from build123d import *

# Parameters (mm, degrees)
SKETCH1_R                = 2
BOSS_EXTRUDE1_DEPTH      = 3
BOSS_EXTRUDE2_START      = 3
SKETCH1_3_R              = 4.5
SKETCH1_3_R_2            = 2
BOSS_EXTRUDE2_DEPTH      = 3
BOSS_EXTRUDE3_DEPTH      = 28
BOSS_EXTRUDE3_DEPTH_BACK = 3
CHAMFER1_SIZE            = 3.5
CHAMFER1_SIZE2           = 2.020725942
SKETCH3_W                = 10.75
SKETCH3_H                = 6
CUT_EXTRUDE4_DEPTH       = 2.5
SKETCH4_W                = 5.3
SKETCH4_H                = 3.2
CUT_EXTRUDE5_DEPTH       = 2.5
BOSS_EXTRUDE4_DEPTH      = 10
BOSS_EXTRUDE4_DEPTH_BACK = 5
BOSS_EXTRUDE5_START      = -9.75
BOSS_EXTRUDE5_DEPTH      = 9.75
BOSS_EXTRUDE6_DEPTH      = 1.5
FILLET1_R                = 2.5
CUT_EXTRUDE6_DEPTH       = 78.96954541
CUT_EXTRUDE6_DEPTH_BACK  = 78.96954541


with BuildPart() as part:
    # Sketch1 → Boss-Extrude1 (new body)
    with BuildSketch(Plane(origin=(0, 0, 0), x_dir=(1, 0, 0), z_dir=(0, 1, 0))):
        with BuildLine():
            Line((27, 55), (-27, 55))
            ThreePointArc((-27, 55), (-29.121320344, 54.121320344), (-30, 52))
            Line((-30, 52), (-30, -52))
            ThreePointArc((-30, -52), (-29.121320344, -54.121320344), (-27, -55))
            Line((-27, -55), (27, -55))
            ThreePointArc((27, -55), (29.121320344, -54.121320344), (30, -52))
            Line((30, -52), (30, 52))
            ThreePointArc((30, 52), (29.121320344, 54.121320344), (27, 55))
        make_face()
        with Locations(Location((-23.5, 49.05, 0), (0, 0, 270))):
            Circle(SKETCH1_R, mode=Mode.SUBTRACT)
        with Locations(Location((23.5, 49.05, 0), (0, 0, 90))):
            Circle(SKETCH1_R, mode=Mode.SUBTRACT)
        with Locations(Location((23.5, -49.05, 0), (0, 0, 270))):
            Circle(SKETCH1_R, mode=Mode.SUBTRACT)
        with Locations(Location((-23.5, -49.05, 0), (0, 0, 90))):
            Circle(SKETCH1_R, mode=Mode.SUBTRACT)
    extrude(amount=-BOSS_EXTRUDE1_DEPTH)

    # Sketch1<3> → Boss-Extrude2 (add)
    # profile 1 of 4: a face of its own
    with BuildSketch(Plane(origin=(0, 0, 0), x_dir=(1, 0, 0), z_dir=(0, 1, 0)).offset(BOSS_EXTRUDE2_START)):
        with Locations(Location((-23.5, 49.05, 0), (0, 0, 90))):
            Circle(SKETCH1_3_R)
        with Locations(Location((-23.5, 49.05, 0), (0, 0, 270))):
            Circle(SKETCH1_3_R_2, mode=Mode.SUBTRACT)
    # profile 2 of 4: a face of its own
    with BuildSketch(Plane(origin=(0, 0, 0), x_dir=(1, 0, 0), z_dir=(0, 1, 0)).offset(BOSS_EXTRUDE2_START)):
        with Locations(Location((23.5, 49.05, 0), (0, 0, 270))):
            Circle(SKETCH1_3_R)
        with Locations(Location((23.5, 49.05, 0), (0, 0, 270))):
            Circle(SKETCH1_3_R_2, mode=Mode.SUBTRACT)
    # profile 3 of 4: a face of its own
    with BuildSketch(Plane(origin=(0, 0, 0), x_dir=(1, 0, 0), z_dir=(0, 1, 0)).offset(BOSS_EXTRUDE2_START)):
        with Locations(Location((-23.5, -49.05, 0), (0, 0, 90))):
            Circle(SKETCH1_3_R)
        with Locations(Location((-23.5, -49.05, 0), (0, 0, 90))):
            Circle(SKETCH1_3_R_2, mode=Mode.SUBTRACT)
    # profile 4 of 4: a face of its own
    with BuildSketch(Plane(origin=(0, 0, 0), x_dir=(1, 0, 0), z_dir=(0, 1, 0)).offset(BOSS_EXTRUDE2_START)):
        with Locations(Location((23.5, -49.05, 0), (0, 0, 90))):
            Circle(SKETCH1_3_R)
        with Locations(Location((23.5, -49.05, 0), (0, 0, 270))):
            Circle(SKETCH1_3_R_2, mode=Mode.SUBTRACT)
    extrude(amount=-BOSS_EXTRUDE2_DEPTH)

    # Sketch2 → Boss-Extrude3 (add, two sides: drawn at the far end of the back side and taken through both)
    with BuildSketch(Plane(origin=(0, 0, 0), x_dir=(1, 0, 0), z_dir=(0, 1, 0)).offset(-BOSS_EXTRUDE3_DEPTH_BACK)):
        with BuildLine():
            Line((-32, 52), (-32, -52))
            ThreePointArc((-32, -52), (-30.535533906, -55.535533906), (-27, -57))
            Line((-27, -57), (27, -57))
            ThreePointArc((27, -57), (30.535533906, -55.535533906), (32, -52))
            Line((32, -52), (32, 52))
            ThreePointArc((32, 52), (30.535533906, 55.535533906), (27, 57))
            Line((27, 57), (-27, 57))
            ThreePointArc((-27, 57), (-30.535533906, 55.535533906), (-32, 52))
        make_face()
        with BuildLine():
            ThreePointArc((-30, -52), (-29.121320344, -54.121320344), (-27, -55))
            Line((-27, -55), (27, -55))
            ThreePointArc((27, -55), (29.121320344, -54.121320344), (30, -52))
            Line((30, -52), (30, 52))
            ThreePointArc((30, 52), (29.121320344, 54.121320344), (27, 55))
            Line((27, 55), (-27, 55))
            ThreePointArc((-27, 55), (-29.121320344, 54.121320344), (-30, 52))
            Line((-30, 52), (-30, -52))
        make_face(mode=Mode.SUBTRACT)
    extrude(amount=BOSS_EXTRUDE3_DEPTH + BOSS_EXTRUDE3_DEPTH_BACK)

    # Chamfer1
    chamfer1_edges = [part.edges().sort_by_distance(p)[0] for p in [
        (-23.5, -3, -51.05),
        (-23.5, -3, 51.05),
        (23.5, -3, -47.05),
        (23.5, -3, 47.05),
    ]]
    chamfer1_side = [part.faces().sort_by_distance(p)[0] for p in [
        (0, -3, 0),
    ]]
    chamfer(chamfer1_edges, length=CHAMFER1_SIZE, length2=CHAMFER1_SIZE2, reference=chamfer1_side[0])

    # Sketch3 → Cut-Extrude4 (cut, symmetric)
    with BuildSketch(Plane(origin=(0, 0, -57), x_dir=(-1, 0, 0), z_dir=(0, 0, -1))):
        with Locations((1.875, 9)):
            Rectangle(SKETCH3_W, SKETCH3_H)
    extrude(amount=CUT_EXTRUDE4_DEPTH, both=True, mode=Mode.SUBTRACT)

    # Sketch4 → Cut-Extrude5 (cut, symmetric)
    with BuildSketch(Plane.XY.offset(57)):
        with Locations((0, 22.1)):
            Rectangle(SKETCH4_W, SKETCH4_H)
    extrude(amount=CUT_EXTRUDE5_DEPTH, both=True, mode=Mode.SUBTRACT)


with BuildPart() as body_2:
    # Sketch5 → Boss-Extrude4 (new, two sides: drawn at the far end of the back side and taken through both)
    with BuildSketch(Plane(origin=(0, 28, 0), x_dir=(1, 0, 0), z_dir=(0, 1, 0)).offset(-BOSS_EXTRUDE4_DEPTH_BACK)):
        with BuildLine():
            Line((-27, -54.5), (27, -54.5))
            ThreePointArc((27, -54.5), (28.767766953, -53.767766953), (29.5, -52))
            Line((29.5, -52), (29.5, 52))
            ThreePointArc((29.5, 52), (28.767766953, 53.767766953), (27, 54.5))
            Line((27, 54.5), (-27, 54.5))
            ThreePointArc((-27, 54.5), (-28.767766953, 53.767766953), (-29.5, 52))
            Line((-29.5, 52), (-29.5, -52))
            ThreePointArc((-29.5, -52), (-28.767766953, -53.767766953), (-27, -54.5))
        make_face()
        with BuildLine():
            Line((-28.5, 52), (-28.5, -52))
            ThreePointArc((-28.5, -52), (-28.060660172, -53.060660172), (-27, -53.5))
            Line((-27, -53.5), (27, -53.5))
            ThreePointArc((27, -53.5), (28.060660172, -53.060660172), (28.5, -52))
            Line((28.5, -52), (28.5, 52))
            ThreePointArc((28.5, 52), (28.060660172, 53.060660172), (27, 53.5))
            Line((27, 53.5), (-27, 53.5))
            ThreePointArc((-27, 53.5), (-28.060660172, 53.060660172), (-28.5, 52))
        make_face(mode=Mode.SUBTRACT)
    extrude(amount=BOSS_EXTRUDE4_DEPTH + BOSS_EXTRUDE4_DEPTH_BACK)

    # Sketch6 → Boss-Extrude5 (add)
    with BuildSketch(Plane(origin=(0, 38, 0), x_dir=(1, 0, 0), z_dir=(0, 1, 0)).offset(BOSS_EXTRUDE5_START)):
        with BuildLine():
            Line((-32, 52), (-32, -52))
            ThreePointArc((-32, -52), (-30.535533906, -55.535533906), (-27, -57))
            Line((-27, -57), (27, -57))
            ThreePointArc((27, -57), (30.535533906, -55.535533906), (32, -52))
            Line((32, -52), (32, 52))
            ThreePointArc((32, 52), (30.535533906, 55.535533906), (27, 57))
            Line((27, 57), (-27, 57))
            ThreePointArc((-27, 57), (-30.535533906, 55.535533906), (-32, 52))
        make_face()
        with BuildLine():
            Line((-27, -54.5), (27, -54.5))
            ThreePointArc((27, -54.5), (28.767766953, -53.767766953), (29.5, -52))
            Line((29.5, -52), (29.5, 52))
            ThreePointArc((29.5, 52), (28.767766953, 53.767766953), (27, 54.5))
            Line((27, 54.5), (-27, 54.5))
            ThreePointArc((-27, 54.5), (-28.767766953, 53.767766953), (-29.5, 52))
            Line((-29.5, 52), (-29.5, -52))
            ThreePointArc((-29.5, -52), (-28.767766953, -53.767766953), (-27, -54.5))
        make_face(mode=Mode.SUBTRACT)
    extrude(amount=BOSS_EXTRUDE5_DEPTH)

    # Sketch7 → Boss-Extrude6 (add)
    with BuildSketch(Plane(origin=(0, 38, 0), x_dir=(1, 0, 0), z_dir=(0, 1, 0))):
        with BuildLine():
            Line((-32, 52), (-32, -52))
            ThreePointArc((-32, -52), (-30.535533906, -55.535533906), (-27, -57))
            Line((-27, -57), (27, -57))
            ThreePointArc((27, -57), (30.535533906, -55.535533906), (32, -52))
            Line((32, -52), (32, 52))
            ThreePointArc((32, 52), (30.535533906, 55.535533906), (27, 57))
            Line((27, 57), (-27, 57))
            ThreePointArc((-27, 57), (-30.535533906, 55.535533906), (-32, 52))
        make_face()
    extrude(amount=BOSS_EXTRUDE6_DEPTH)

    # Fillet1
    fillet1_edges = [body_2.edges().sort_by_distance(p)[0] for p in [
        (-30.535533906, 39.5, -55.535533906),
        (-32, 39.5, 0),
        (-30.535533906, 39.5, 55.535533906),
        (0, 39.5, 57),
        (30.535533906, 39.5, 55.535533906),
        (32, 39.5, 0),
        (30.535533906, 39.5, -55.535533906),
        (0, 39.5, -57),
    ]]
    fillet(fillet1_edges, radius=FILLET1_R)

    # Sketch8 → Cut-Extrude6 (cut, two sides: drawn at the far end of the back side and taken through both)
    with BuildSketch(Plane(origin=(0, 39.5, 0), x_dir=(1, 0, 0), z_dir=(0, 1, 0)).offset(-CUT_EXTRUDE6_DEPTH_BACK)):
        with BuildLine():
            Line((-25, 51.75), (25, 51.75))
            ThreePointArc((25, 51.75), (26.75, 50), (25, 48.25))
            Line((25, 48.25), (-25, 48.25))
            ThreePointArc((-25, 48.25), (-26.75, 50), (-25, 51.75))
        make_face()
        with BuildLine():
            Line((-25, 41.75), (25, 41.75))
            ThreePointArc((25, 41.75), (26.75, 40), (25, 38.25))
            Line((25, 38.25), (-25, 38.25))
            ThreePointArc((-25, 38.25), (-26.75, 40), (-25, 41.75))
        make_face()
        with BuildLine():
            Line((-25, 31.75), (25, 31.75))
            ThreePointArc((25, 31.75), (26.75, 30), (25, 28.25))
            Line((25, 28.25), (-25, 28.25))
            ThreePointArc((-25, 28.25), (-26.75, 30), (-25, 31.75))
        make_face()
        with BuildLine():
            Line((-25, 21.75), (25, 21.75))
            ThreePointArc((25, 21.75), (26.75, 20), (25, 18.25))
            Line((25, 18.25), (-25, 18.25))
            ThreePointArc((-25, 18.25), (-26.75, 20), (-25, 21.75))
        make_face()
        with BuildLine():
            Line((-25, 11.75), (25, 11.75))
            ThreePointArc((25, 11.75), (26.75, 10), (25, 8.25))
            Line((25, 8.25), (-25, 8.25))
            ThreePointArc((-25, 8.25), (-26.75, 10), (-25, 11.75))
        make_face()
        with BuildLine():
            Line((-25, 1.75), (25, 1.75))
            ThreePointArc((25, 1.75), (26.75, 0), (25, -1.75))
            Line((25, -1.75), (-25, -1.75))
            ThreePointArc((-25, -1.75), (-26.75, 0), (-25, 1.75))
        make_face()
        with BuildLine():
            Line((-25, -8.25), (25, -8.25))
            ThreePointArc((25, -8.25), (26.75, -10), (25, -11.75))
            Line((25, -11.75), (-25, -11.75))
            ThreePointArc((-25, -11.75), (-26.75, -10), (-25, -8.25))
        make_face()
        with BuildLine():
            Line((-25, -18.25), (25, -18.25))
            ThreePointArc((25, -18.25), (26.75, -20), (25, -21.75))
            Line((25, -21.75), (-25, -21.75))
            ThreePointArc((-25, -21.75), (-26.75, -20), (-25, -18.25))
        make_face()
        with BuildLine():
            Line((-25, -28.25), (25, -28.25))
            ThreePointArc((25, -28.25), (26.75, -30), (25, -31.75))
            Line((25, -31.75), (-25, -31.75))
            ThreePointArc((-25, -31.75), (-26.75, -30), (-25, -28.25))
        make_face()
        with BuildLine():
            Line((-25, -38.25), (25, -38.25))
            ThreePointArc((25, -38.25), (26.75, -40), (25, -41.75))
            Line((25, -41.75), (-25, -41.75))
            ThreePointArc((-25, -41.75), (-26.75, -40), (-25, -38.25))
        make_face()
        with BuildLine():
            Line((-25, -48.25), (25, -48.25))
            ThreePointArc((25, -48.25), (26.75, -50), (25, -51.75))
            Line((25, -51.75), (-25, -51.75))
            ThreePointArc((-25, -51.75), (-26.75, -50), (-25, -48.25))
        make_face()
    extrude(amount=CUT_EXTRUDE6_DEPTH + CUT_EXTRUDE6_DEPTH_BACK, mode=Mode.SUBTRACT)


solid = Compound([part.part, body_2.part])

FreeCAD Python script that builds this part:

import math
import FreeCAD as App
import Part
import Sketcher

V = App.Vector
Q = App.Units.Quantity


def edges_at(feature, points):
    """Names of the edges that pass closest to the given points."""
    edges = feature.Shape.Edges
    near = lambda p: min(range(len(edges)), key=lambda i: edges[i].distToShape(Part.Vertex(*p))[0])
    return sorted({f"Edge{near(p) + 1}" for p in points})


def add_polygon(sketch, points):
    """Adds a closed chain of lines whose ends are joined by coincident constraints."""
    first, n = sketch.GeometryCount, len(points)
    for a, b in zip(points, points[1:] + points[:1]):
        sketch.addGeometry(Part.LineSegment(App.Vector(*a, 0), App.Vector(*b, 0)), False)
    for i in range(n):
        sketch.addConstraint(Sketcher.Constraint("Coincident", first + i, 2, first + (i + 1) % n, 1))

doc = App.newDocument("Part")
body = doc.addObject("PartDesign::Body", "Body")

sketch1 = doc.addObject("Sketcher::SketchObject", "Sketch")
body.addObject(sketch1)
sketch1.AttachmentSupport = (doc.XZ_Plane, [""])
sketch1.MapMode = "FlatFace"
sketch1.addGeometry([
    Part.LineSegment(V(27, -55, 0), V(-27, -55, 0)),
    Part.ArcOfCircle(Part.Circle(V(-27, -52, 0), V(0, 0, 1), 3), math.radians(180), math.radians(270)),
    Part.LineSegment(V(-30, -52, 0), V(-30, 52, 0)),
    Part.ArcOfCircle(Part.Circle(V(-27, 52, 0), V(0, 0, 1), 3), math.radians(90), math.radians(180)),
    Part.LineSegment(V(-27, 55, 0), V(27, 55, 0)),
    Part.ArcOfCircle(Part.Circle(V(27, 52, 0), V(0, 0, 1), 3), math.radians(0), math.radians(90)),
    Part.LineSegment(V(30, 52, 0), V(30, -52, 0)),
    Part.ArcOfCircle(Part.Circle(V(27, -52, 0), V(0, 0, 1), 3), math.radians(-90), math.radians(0)),
    Part.Circle(V(-23.5, 49.05, 0), V(0, 0, 1), 2),
    Part.Circle(V(23.5, 49.05, 0), V(0, 0, 1), 2),
    Part.Circle(V(-23.5, -49.05, 0), V(0, 0, 1), 2),
    Part.Circle(V(23.5, -49.05, 0), V(0, 0, 1), 2),
], False)
sketch1.addConstraint([
    Sketcher.Constraint("Tangent", 0, 2, 1, 2),
    Sketcher.Constraint("Tangent", 1, 1, 2, 1),
    Sketcher.Constraint("Tangent", 2, 2, 3, 2),
    Sketcher.Constraint("Tangent", 3, 1, 4, 1),
    Sketcher.Constraint("Tangent", 4, 2, 5, 2),
    Sketcher.Constraint("Tangent", 5, 1, 6, 1),
    Sketcher.Constraint("Tangent", 6, 2, 7, 2),
    Sketcher.Constraint("Tangent", 7, 1, 0, 1),
    Sketcher.Constraint("Horizontal", 0),
    Sketcher.Constraint("Vertical", 2),
    Sketcher.Constraint("Horizontal", 4),
    Sketcher.Constraint("Vertical", 6),
    Sketcher.Constraint("Equal", 1, 3),
    Sketcher.Constraint("Equal", 3, 5),
    Sketcher.Constraint("Equal", 5, 7),
    Sketcher.Constraint("Equal", 8, 9),
    Sketcher.Constraint("Equal", 9, 10),
    Sketcher.Constraint("Equal", 10, 11),
    Sketcher.Constraint("Symmetric", 1, 3, 5, 3, -1, 1),
    Sketcher.Constraint("Symmetric", 9, 3, 10, 3, -1, 1),
    Sketcher.Constraint("Symmetric", 8, 3, 11, 3, -1, 1),
    Sketcher.Constraint("Symmetric", 8, 3, 9, 3, -2),
    Sketcher.Constraint("Diameter", 8, Q("4 mm")),
    Sketcher.Constraint("Radius", 1, Q("3 mm")),
    Sketcher.Constraint("DistanceX", 0, 2, 0, 1, Q("54 mm")),
    Sketcher.Constraint("DistanceY", 2, 1, 2, 2, Q("104 mm")),
    Sketcher.Constraint("DistanceX", 8, 3, 9, 3, Q("47 mm")),
    Sketcher.Constraint("DistanceY", 10, 3, 8, 3, Q("98.1 mm")),
])
pad1 = doc.addObject("PartDesign::Pad", "Pad")
body.addObject(pad1)
pad1.Profile = sketch1
pad1.Length = 3

sketch2 = doc.addObject("Sketcher::SketchObject", "Sketch001")
body.addObject(sketch2)
sketch2.AttachmentSupport = (doc.XZ_Plane, [""])
sketch2.MapMode = "FlatFace"
sketch2.AttachmentOffset = App.Placement(V(0, 0, -3), App.Rotation())
sketch2.addGeometry([
    Part.Circle(V(-23.5, -49.05, 0), V(0, 0, 1), 4.5),
    Part.Circle(V(-23.5, -49.05, 0), V(0, 0, 1), 2),
    Part.Circle(V(23.5, -49.05, 0), V(0, 0, 1), 4.5),
    Part.Circle(V(23.5, -49.05, 0), V(0, 0, 1), 2),
    Part.Circle(V(-23.5, 49.05, 0), V(0, 0, 1), 4.5),
    Part.Circle(V(-23.5, 49.05, 0), V(0, 0, 1), 2),
    Part.Circle(V(23.5, 49.05, 0), V(0, 0, 1), 4.5),
    Part.Circle(V(23.5, 49.05, 0), V(0, 0, 1), 2),
], False)
sketch2.addConstraint([
    Sketcher.Constraint("Coincident", 1, 3, 0, 3),
    Sketcher.Constraint("Coincident", 3, 3, 2, 3),
    Sketcher.Constraint("Coincident", 5, 3, 4, 3),
    Sketcher.Constraint("Coincident", 7, 3, 6, 3),
    Sketcher.Constraint("Equal", 0, 2),
    Sketcher.Constraint("Equal", 1, 3),
    Sketcher.Constraint("Equal", 2, 4),
    Sketcher.Constraint("Equal", 3, 5),
    Sketcher.Constraint("Equal", 4, 6),
    Sketcher.Constraint("Equal", 5, 7),
    Sketcher.Constraint("Symmetric", 2, 3, 4, 3, -1, 1),
    Sketcher.Constraint("Symmetric", 0, 3, 6, 3, -1, 1),
    Sketcher.Constraint("Symmetric", 0, 3, 2, 3, -2),
    Sketcher.Constraint("Diameter", 0, Q("9 mm")),
    Sketcher.Constraint("Diameter", 1, Q("4 mm")),
    Sketcher.Constraint("DistanceX", 0, 3, 2, 3, Q("47 mm")),
    Sketcher.Constraint("DistanceY", 0, 3, 4, 3, Q("98.1 mm")),
])
pad2 = doc.addObject("PartDesign::Pad", "Pad001")
body.addObject(pad2)
pad2.Profile = sketch2
pad2.Length = 3

sketch3 = doc.addObject("Sketcher::SketchObject", "Sketch002")
body.addObject(sketch3)
sketch3.AttachmentSupport = (doc.XZ_Plane, [""])
sketch3.MapMode = "FlatFace"
sketch3.addGeometry([
    Part.LineSegment(V(-32, -52, 0), V(-32, 52, 0)),
    Part.ArcOfCircle(Part.Circle(V(-27, 52, 0), V(0, 0, 1), 5), math.radians(90), math.radians(180)),
    Part.LineSegment(V(-27, 57, 0), V(27, 57, 0)),
    Part.ArcOfCircle(Part.Circle(V(27, 52, 0), V(0, 0, 1), 5), math.radians(0), math.radians(90)),
    Part.LineSegment(V(32, 52, 0), V(32, -52, 0)),
    Part.ArcOfCircle(Part.Circle(V(27, -52, 0), V(0, 0, 1), 5), math.radians(-90), math.radians(0)),
    Part.LineSegment(V(27, -57, 0), V(-27, -57, 0)),
    Part.ArcOfCircle(Part.Circle(V(-27, -52, 0), V(0, 0, 1), 5), math.radians(180), math.radians(270)),
    Part.ArcOfCircle(Part.Circle(V(-27, 52, 0), V(0, 0, 1), 3), math.radians(90), math.radians(180)),
    Part.LineSegment(V(-30, 52, 0), V(-30, -52, 0)),
    Part.ArcOfCircle(Part.Circle(V(-27, -52, 0), V(0, 0, 1), 3), math.radians(180), math.radians(270)),
    Part.LineSegment(V(-27, -55, 0), V(27, -55, 0)),
    Part.ArcOfCircle(Part.Circle(V(27, -52, 0), V(0, 0, 1), 3), math.radians(-90), math.radians(0)),
    Part.LineSegment(V(30, -52, 0), V(30, 52, 0)),
    Part.ArcOfCircle(Part.Circle(V(27, 52, 0), V(0, 0, 1), 3), math.radians(0), math.radians(90)),
    Part.LineSegment(V(27, 55, 0), V(-27, 55, 0)),
], False)
sketch3.addConstraint([
    Sketcher.Constraint("Tangent", 0, 2, 1, 2),
    Sketcher.Constraint("Tangent", 1, 1, 2, 1),
    Sketcher.Constraint("Tangent", 2, 2, 3, 2),
    Sketcher.Constraint("Tangent", 3, 1, 4, 1),
    Sketcher.Constraint("Tangent", 4, 2, 5, 2),
    Sketcher.Constraint("Tangent", 5, 1, 6, 1),
    Sketcher.Constraint("Tangent", 6, 2, 7, 2),
    Sketcher.Constraint("Tangent", 7, 1, 0, 1),
    Sketcher.Constraint("Tangent", 8, 2, 9, 1),
    Sketcher.Constraint("Tangent", 9, 2, 10, 1),
    Sketcher.Constraint("Tangent", 10, 2, 11, 1),
    Sketcher.Constraint("Tangent", 11, 2, 12, 1),
    Sketcher.Constraint("Tangent", 12, 2, 13, 1),
    Sketcher.Constraint("Tangent", 13, 2, 14, 1),
    Sketcher.Constraint("Tangent", 14, 2, 15, 1),
    Sketcher.Constraint("Tangent", 15, 2, 8, 1),
    Sketcher.Constraint("Vertical", 0),
    Sketcher.Constraint("Horizontal", 2),
    Sketcher.Constraint("Vertical", 4),
    Sketcher.Constraint("Horizontal", 6),
    Sketcher.Constraint("Vertical", 9),
    Sketcher.Constraint("Horizontal", 11),
    Sketcher.Constraint("Vertical", 13),
    Sketcher.Constraint("Horizontal", 15),
    Sketcher.Constraint("Coincident", 8, 3, 1, 3),
    Sketcher.Constraint("Coincident", 10, 3, 7, 3),
    Sketcher.Constraint("Coincident", 12, 3, 5, 3),
    Sketcher.Constraint("Equal", 1, 3),
    Sketcher.Constraint("Equal", 3, 5),
    Sketcher.Constraint("Equal", 5, 7),
    Sketcher.Constraint("Equal", 12, 14),
    Sketcher.Constraint("Symmetric", 1, 3, 5, 3, -1, 1),
    Sketcher.Constraint("Radius", 1, Q("5 mm")),
    Sketcher.Constraint("Radius", 8, Q("3 mm")),
    Sketcher.Constraint("DistanceX", 2, 1, 2, 2, Q("54 mm")),
    Sketcher.Constraint("DistanceY", 0, 1, 0, 2, Q("104 mm")),
])
pad3 = doc.addObject("PartDesign::Pad", "Pad002")
body.addObject(pad3)
pad3.Profile = sketch3
pad3.Type = "TwoLengths"
pad3.Length = 28
pad3.Length2 = 3
pad3.Reversed = True
doc.recompute()

chamfer = doc.addObject("PartDesign::Chamfer", "Chamfer")
body.addObject(chamfer)
chamfer.Base = (pad3, edges_at(pad3, [
    (-23.5, -3, -51.05),
    (-23.5, -3, 51.05),
    (23.5, -3, -47.05),
    (23.5, -3, 47.05),
]))
chamfer.ChamferType = "Two distances"
chamfer.Size = 3.5
chamfer.Size2 = 2.020726
chamfer.FlipDirection = True

sketch4 = doc.addObject("Sketcher::SketchObject", "Sketch003")
body.addObject(sketch4)
sketch4.AttachmentSupport = (doc.XY_Plane, [""])
sketch4.MapMode = "FlatFace"
sketch4.AttachmentOffset = App.Placement(V(0, 0, -57), App.Rotation())
add_polygon(sketch4, [(3.5, 12), (3.5, 6), (-7.25, 6), (-7.25, 12)])
sketch4.addConstraint([
    Sketcher.Constraint("Vertical", 0),
    Sketcher.Constraint("Horizontal", 1),
    Sketcher.Constraint("Vertical", 2),
    Sketcher.Constraint("Horizontal", 3),
    Sketcher.Constraint("DistanceY", 0, 2, 0, 1, Q("6 mm")),
    Sketcher.Constraint("DistanceY", -1, 1, 0, 2, Q("6 mm")),
    Sketcher.Constraint("DistanceX", 1, 2, 1, 1, Q("10.75 mm")),
    Sketcher.Constraint("DistanceX", -1, 1, 0, 2, Q("3.5 mm")),
])
pocket1 = doc.addObject("PartDesign::Pocket", "Pocket")
body.addObject(pocket1)
pocket1.Profile = sketch4
pocket1.Length = 5
pocket1.Midplane = True

sketch5 = doc.addObject("Sketcher::SketchObject", "Sketch004")
body.addObject(sketch5)
sketch5.AttachmentSupport = (doc.XY_Plane, [""])
sketch5.MapMode = "FlatFace"
sketch5.AttachmentOffset = App.Placement(V(0, 0, 57), App.Rotation())
add_polygon(sketch5, [(-2.65, 23.7), (-2.65, 20.5), (2.65, 20.5), (2.65, 23.7)])
sketch5.addConstraint([
    Sketcher.Constraint("Vertical", 0),
    Sketcher.Constraint("Horizontal", 1),
    Sketcher.Constraint("Vertical", 2),
    Sketcher.Constraint("Horizontal", 3),
    Sketcher.Constraint("DistanceX", 1, 1, 1, 2, Q("5.3 mm")),
    Sketcher.Constraint("DistanceY", 0, 2, 0, 1, Q("3.2 mm")),
    Sketcher.Constraint("DistanceY", -1, 1, 0, 2, Q("20.5 mm")),
    Sketcher.Constraint("DistanceX", 0, 2, -1, 1, Q("2.65 mm")),
])
pocket2 = doc.addObject("PartDesign::Pocket", "Pocket001")
body.addObject(pocket2)
pocket2.Profile = sketch5
pocket2.Length = 5
pocket2.Midplane = True
body2 = doc.addObject("PartDesign::Body", "Body001")

sketch6 = doc.addObject("Sketcher::SketchObject", "Sketch005")
body2.addObject(sketch6)
sketch6.AttachmentSupport = (doc.getObject("XZ_Plane001"), [""])
sketch6.MapMode = "FlatFace"
sketch6.AttachmentOffset = App.Placement(V(0, 0, -28), App.Rotation())
sketch6.addGeometry([
    Part.LineSegment(V(-27, 54.5, 0), V(27, 54.5, 0)),
    Part.ArcOfCircle(Part.Circle(V(27, 52, 0), V(0, 0, 1), 2.5), math.radians(0), math.radians(90)),
    Part.LineSegment(V(29.5, 52, 0), V(29.5, -52, 0)),
    Part.ArcOfCircle(Part.Circle(V(27, -52, 0), V(0, 0, 1), 2.5), math.radians(-90), math.radians(0)),
    Part.LineSegment(V(27, -54.5, 0), V(-27, -54.5, 0)),
    Part.ArcOfCircle(Part.Circle(V(-27, -52, 0), V(0, 0, 1), 2.5), math.radians(180), math.radians(270)),
    Part.LineSegment(V(-29.5, -52, 0), V(-29.5, 52, 0)),
    Part.ArcOfCircle(Part.Circle(V(-27, 52, 0), V(0, 0, 1), 2.5), math.radians(90), math.radians(180)),
    Part.LineSegment(V(-28.5, 52, 0), V(-28.5, -52, 0)),
    Part.ArcOfCircle(Part.Circle(V(-27, -52, 0), V(0, 0, 1), 1.5), math.radians(180), math.radians(270)),
    Part.LineSegment(V(-27, -53.5, 0), V(27, -53.5, 0)),
    Part.ArcOfCircle(Part.Circle(V(27, -52, 0), V(0, 0, 1), 1.5), math.radians(-90), math.radians(0)),
    Part.LineSegment(V(28.5, -52, 0), V(28.5, 52, 0)),
    Part.ArcOfCircle(Part.Circle(V(27, 52, 0), V(0, 0, 1), 1.5), math.radians(0), math.radians(90)),
    Part.LineSegment(V(27, 53.5, 0), V(-27, 53.5, 0)),
    Part.ArcOfCircle(Part.Circle(V(-27, 52, 0), V(0, 0, 1), 1.5), math.radians(90), math.radians(180)),
], False)
sketch6.addConstraint([
    Sketcher.Constraint("Tangent", 0, 2, 1, 2),
    Sketcher.Constraint("Tangent", 1, 1, 2, 1),
    Sketcher.Constraint("Tangent", 2, 2, 3, 2),
    Sketcher.Constraint("Tangent", 3, 1, 4, 1),
    Sketcher.Constraint("Tangent", 4, 2, 5, 2),
    Sketcher.Constraint("Tangent", 5, 1, 6, 1),
    Sketcher.Constraint("Tangent", 6, 2, 7, 2),
    Sketcher.Constraint("Tangent", 7, 1, 0, 1),
    Sketcher.Constraint("Tangent", 8, 2, 9, 1),
    Sketcher.Constraint("Tangent", 9, 2, 10, 1),
    Sketcher.Constraint("Tangent", 10, 2, 11, 1),
    Sketcher.Constraint("Tangent", 11, 2, 12, 1),
    Sketcher.Constraint("Tangent", 12, 2, 13, 1),
    Sketcher.Constraint("Tangent", 13, 2, 14, 1),
    Sketcher.Constraint("Tangent", 14, 2, 15, 1),
    Sketcher.Constraint("Tangent", 15, 2, 8, 1),
    Sketcher.Constraint("Horizontal", 0),
    Sketcher.Constraint("Vertical", 2),
    Sketcher.Constraint("Horizontal", 4),
    Sketcher.Constraint("Vertical", 6),
    Sketcher.Constraint("Vertical", 8),
    Sketcher.Constraint("Horizontal", 10),
    Sketcher.Constraint("Vertical", 12),
    Sketcher.Constraint("Horizontal", 14),
    Sketcher.Constraint("Coincident", 9, 3, 5, 3),
    Sketcher.Constraint("Coincident", 11, 3, 3, 3),
    Sketcher.Constraint("Coincident", 13, 3, 1, 3),
    Sketcher.Constraint("Equal", 1, 3),
    Sketcher.Constraint("Equal", 3, 5),
    Sketcher.Constraint("Equal", 5, 7),
    Sketcher.Constraint("Equal", 13, 15),
    Sketcher.Constraint("Symmetric", 1, 3, 5, 3, -1, 1),
    Sketcher.Constraint("Radius", 1, Q("2.5 mm")),
    Sketcher.Constraint("Radius", 9, Q("1.5 mm")),
    Sketcher.Constraint("DistanceX", 0, 1, 0, 2, Q("54 mm")),
    Sketcher.Constraint("DistanceY", 2, 2, 2, 1, Q("104 mm")),
])
pad4 = doc.addObject("PartDesign::Pad", "Pad003")
body2.addObject(pad4)
pad4.Profile = sketch6
pad4.Type = "TwoLengths"
pad4.Length = 10
pad4.Length2 = 5
pad4.Reversed = True

sketch7 = doc.addObject("Sketcher::SketchObject", "Sketch006")
body2.addObject(sketch7)
sketch7.AttachmentSupport = (doc.getObject("XZ_Plane001"), [""])
sketch7.MapMode = "FlatFace"
sketch7.AttachmentOffset = App.Placement(V(0, 0, -28.25), App.Rotation())
sketch7.addGeometry([
    Part.LineSegment(V(-32, -52, 0), V(-32, 52, 0)),
    Part.ArcOfCircle(Part.Circle(V(-27, 52, 0), V(0, 0, 1), 5), math.radians(90), math.radians(180)),
    Part.LineSegment(V(-27, 57, 0), V(27, 57, 0)),
    Part.ArcOfCircle(Part.Circle(V(27, 52, 0), V(0, 0, 1), 5), math.radians(0), math.radians(90)),
    Part.LineSegment(V(32, 52, 0), V(32, -52, 0)),
    Part.ArcOfCircle(Part.Circle(V(27, -52, 0), V(0, 0, 1), 5), math.radians(-90), math.radians(0)),
    Part.LineSegment(V(27, -57, 0), V(-27, -57, 0)),
    Part.ArcOfCircle(Part.Circle(V(-27, -52, 0), V(0, 0, 1), 5), math.radians(180), math.radians(270)),
    Part.LineSegment(V(27, 54.5, 0), V(-27, 54.5, 0)),
    Part.ArcOfCircle(Part.Circle(V(-27, 52, 0), V(0, 0, 1), 2.5), math.radians(90), math.radians(180)),
    Part.LineSegment(V(-29.5, 52, 0), V(-29.5, -52, 0)),
    Part.ArcOfCircle(Part.Circle(V(-27, -52, 0), V(0, 0, 1), 2.5), math.radians(180), math.radians(270)),
    Part.LineSegment(V(-27, -54.5, 0), V(27, -54.5, 0)),
    Part.ArcOfCircle(Part.Circle(V(27, -52, 0), V(0, 0, 1), 2.5), math.radians(-90), math.radians(0)),
    Part.LineSegment(V(29.5, -52, 0), V(29.5, 52, 0)),
    Part.ArcOfCircle(Part.Circle(V(27, 52, 0), V(0, 0, 1), 2.5), math.radians(0), math.radians(90)),
], False)
sketch7.addConstraint([
    Sketcher.Constraint("Tangent", 0, 2, 1, 2),
    Sketcher.Constraint("Tangent", 1, 1, 2, 1),
    Sketcher.Constraint("Tangent", 2, 2, 3, 2),
    Sketcher.Constraint("Tangent", 3, 1, 4, 1),
    Sketcher.Constraint("Tangent", 4, 2, 5, 2),
    Sketcher.Constraint("Tangent", 5, 1, 6, 1),
    Sketcher.Constraint("Tangent", 6, 2, 7, 2),
    Sketcher.Constraint("Tangent", 7, 1, 0, 1),
    Sketcher.Constraint("Tangent", 8, 2, 9, 1),
    Sketcher.Constraint("Tangent", 9, 2, 10, 1),
    Sketcher.Constraint("Tangent", 10, 2, 11, 1),
    Sketcher.Constraint("Tangent", 11, 2, 12, 1),
    Sketcher.Constraint("Tangent", 12, 2, 13, 1),
    Sketcher.Constraint("Tangent", 13, 2, 14, 1),
    Sketcher.Constraint("Tangent", 14, 2, 15, 1),
    Sketcher.Constraint("Tangent", 15, 2, 8, 1),
    Sketcher.Constraint("Vertical", 0),
    Sketcher.Constraint("Horizontal", 2),
    Sketcher.Constraint("Vertical", 4),
    Sketcher.Constraint("Horizontal", 6),
    Sketcher.Constraint("Horizontal", 8),
    Sketcher.Constraint("Vertical", 10),
    Sketcher.Constraint("Horizontal", 12),
    Sketcher.Constraint("Vertical", 14),
    Sketcher.Constraint("Coincident", 9, 3, 1, 3),
    Sketcher.Constraint("Coincident", 11, 3, 7, 3),
    Sketcher.Constraint("Coincident", 13, 3, 5, 3),
    Sketcher.Constraint("Equal", 1, 3),
    Sketcher.Constraint("Equal", 3, 5),
    Sketcher.Constraint("Equal", 5, 7),
    Sketcher.Constraint("Equal", 13, 15),
    Sketcher.Constraint("Symmetric", 1, 3, 5, 3, -1, 1),
    Sketcher.Constraint("Radius", 1, Q("5 mm")),
    Sketcher.Constraint("Radius", 9, Q("2.5 mm")),
    Sketcher.Constraint("DistanceX", 2, 1, 2, 2, Q("54 mm")),
    Sketcher.Constraint("DistanceY", 0, 1, 0, 2, Q("104 mm")),
])
pad5 = doc.addObject("PartDesign::Pad", "Pad004")
body2.addObject(pad5)
pad5.Profile = sketch7
pad5.Length = 9.75
pad5.Reversed = True

sketch8 = doc.addObject("Sketcher::SketchObject", "Sketch007")
body2.addObject(sketch8)
sketch8.AttachmentSupport = (doc.getObject("XZ_Plane001"), [""])
sketch8.MapMode = "FlatFace"
sketch8.AttachmentOffset = App.Placement(V(0, 0, -38), App.Rotation())
sketch8.addGeometry([
    Part.LineSegment(V(-32, -52, 0), V(-32, 52, 0)),
    Part.ArcOfCircle(Part.Circle(V(-27, 52, 0), V(0, 0, 1), 5), math.radians(90), math.radians(180)),
    Part.LineSegment(V(-27, 57, 0), V(27, 57, 0)),
    Part.ArcOfCircle(Part.Circle(V(27, 52, 0), V(0, 0, 1), 5), math.radians(0), math.radians(90)),
    Part.LineSegment(V(32, 52, 0), V(32, -52, 0)),
    Part.ArcOfCircle(Part.Circle(V(27, -52, 0), V(0, 0, 1), 5), math.radians(-90), math.radians(0)),
    Part.LineSegment(V(27, -57, 0), V(-27, -57, 0)),
    Part.ArcOfCircle(Part.Circle(V(-27, -52, 0), V(0, 0, 1), 5), math.radians(180), math.radians(270)),
], False)
sketch8.addConstraint([
    Sketcher.Constraint("Tangent", 0, 2, 1, 2),
    Sketcher.Constraint("Tangent", 1, 1, 2, 1),
    Sketcher.Constraint("Tangent", 2, 2, 3, 2),
    Sketcher.Constraint("Tangent", 3, 1, 4, 1),
    Sketcher.Constraint("Tangent", 4, 2, 5, 2),
    Sketcher.Constraint("Tangent", 5, 1, 6, 1),
    Sketcher.Constraint("Tangent", 6, 2, 7, 2),
    Sketcher.Constraint("Tangent", 7, 1, 0, 1),
    Sketcher.Constraint("Vertical", 0),
    Sketcher.Constraint("Horizontal", 2),
    Sketcher.Constraint("Vertical", 4),
    Sketcher.Constraint("Horizontal", 6),
    Sketcher.Constraint("Equal", 1, 3),
    Sketcher.Constraint("Equal", 3, 5),
    Sketcher.Constraint("Equal", 5, 7),
    Sketcher.Constraint("Symmetric", 1, 3, 5, 3, -1, 1),
    Sketcher.Constraint("Radius", 1, Q("5 mm")),
    Sketcher.Constraint("DistanceX", 2, 1, 2, 2, Q("54 mm")),
    Sketcher.Constraint("DistanceY", 0, 1, 0, 2, Q("104 mm")),
])
pad6 = doc.addObject("PartDesign::Pad", "Pad005")
body2.addObject(pad6)
pad6.Profile = sketch8
pad6.Length = 1.5
pad6.Reversed = True
doc.recompute()

fillet = doc.addObject("PartDesign::Fillet", "Fillet")
body2.addObject(fillet)
fillet.Base = (pad6, edges_at(pad6, [
    (-30.536, 39.5, -55.536),
    (-32, 39.5, 0),
    (-30.536, 39.5, 55.536),
    (0, 39.5, 57),
    (30.536, 39.5, 55.536),
    (32, 39.5, 0),
    (30.536, 39.5, -55.536),
    (0, 39.5, -57),
]))
fillet.Radius = 2.5

sketch9 = doc.addObject("Sketcher::SketchObject", "Sketch008")
body2.addObject(sketch9)
sketch9.AttachmentSupport = (doc.getObject("XZ_Plane001"), [""])
sketch9.MapMode = "FlatFace"
sketch9.AttachmentOffset = App.Placement(V(0, 0, -39.5), App.Rotation())
sketch9.addGeometry([
    Part.LineSegment(V(25, -51.75, 0), V(-25, -51.75, 0)),
    Part.ArcOfCircle(Part.Circle(V(-25, -50, 0), V(0, 0, 1), 1.75), math.radians(90), math.radians(270)),
    Part.LineSegment(V(-25, -48.25, 0), V(25, -48.25, 0)),
    Part.ArcOfCircle(Part.Circle(V(25, -50, 0), V(0, 0, 1), 1.75), math.radians(-90), math.radians(90)),
    Part.LineSegment(V(25, -41.75, 0), V(-25, -41.75, 0)),
    Part.ArcOfCircle(Part.Circle(V(-25, -40, 0), V(0, 0, 1), 1.75), math.radians(90), math.radians(270)),
    Part.LineSegment(V(-25, -38.25, 0), V(25, -38.25, 0)),
    Part.ArcOfCircle(Part.Circle(V(25, -40, 0), V(0, 0, 1), 1.75), math.radians(-90), math.radians(90)),
    Part.LineSegment(V(25, -31.75, 0), V(-25, -31.75, 0)),
    Part.ArcOfCircle(Part.Circle(V(-25, -30, 0), V(0, 0, 1), 1.75), math.radians(90), math.radians(270)),
    Part.LineSegment(V(-25, -28.25, 0), V(25, -28.25, 0)),
    Part.ArcOfCircle(Part.Circle(V(25, -30, 0), V(0, 0, 1), 1.75), math.radians(-90), math.radians(90)),
    Part.LineSegment(V(25, -21.75, 0), V(-25, -21.75, 0)),
    Part.ArcOfCircle(Part.Circle(V(-25, -20, 0), V(0, 0, 1), 1.75), math.radians(90), math.radians(270)),
    Part.LineSegment(V(-25, -18.25, 0), V(25, -18.25, 0)),
    Part.ArcOfCircle(Part.Circle(V(25, -20, 0), V(0, 0, 1), 1.75), math.radians(-90), math.radians(90)),
    Part.LineSegment(V(25, -11.75, 0), V(-25, -11.75, 0)),
    Part.ArcOfCircle(Part.Circle(V(-25, -10, 0), V(0, 0, 1), 1.75), math.radians(90), math.radians(270)),
    Part.LineSegment(V(-25, -8.25, 0), V(25, -8.25, 0)),
    Part.ArcOfCircle(Part.Circle(V(25, -10, 0), V(0, 0, 1), 1.75), math.radians(-90), math.radians(90)),
    Part.LineSegment(V(25, -1.75, 0), V(-25, -1.75, 0)),
    Part.ArcOfCircle(Part.Circle(V(-25, 0, 0), V(0, 0, 1), 1.75), math.radians(90), math.radians(270)),
    Part.LineSegment(V(-25, 1.75, 0), V(25, 1.75, 0)),
    Part.ArcOfCircle(Part.Circle(V(25, 0, 0), V(0, 0, 1), 1.75), math.radians(-90), math.radians(90)),
    Part.LineSegment(V(25, 8.25, 0), V(-25, 8.25, 0)),
    Part.ArcOfCircle(Part.Circle(V(-25, 10, 0), V(0, 0, 1), 1.75), math.radians(90), math.radians(270)),
    Part.LineSegment(V(-25, 11.75, 0), V(25, 11.75, 0)),
    Part.ArcOfCircle(Part.Circle(V(25, 10, 0), V(0, 0, 1), 1.75), math.radians(-90), math.radians(90)),
    Part.LineSegment(V(25, 18.25, 0), V(-25, 18.25, 0)),
    Part.ArcOfCircle(Part.Circle(V(-25, 20, 0), V(0, 0, 1), 1.75), math.radians(90), math.radians(270)),
    Part.LineSegment(V(-25, 21.75, 0), V(25, 21.75, 0)),
    Part.ArcOfCircle(Part.Circle(V(25, 20, 0), V(0, 0, 1), 1.75), math.radians(-90), math.radians(90)),
    Part.LineSegment(V(25, 28.25, 0), V(-25, 28.25, 0)),
    Part.ArcOfCircle(Part.Circle(V(-25, 30, 0), V(0, 0, 1), 1.75), math.radians(90), math.radians(270)),
    Part.LineSegment(V(-25, 31.75, 0), V(25, 31.75, 0)),
    Part.ArcOfCircle(Part.Circle(V(25, 30, 0), V(0, 0, 1), 1.75), math.radians(-90), math.radians(90)),
    Part.LineSegment(V(25, 38.25, 0), V(-25, 38.25, 0)),
    Part.ArcOfCircle(Part.Circle(V(-25, 40, 0), V(0, 0, 1), 1.75), math.radians(90), math.radians(270)),
    Part.LineSegment(V(-25, 41.75, 0), V(25, 41.75, 0)),
    Part.ArcOfCircle(Part.Circle(V(25, 40, 0), V(0, 0, 1), 1.75), math.radians(-90), math.radians(90)),
    Part.LineSegment(V(25, 48.25, 0), V(-25, 48.25, 0)),
    Part.ArcOfCircle(Part.Circle(V(-25, 50, 0), V(0, 0, 1), 1.75), math.radians(90), math.radians(270)),
    Part.LineSegment(V(-25, 51.75, 0), V(25, 51.75, 0)),
    Part.ArcOfCircle(Part.Circle(V(25, 50, 0), V(0, 0, 1), 1.75), math.radians(-90), math.radians(90)),
], False)
sketch9.addConstraint([
    Sketcher.Constraint("Tangent", 0, 2, 1, 2),
    Sketcher.Constraint("Tangent", 1, 1, 2, 1),
    Sketcher.Constraint("Tangent", 2, 2, 3, 2),
    Sketcher.Constraint("Tangent", 3, 1, 0, 1),
    Sketcher.Constraint("Tangent", 4, 2, 5, 2),
    Sketcher.Constraint("Tangent", 5, 1, 6, 1),
    Sketcher.Constraint("Tangent", 6, 2, 7, 2),
    Sketcher.Constraint("Tangent", 7, 1, 4, 1),
    Sketcher.Constraint("Tangent", 8, 2, 9, 2),
    Sketcher.Constraint("Tangent", 9, 1, 10, 1),
    Sketcher.Constraint("Tangent", 10, 2, 11, 2),
    Sketcher.Constraint("Tangent", 11, 1, 8, 1),
    Sketcher.Constraint("Tangent", 12, 2, 13, 2),
    Sketcher.Constraint("Tangent", 13, 1, 14, 1),
    Sketcher.Constraint("Tangent", 14, 2, 15, 2),
    Sketcher.Constraint("Tangent", 15, 1, 12, 1),
    Sketcher.Constraint("Tangent", 16, 2, 17, 2),
    Sketcher.Constraint("Tangent", 17, 1, 18, 1),
    Sketcher.Constraint("Tangent", 18, 2, 19, 2),
    Sketcher.Constraint("Tangent", 19, 1, 16, 1),
    Sketcher.Constraint("Tangent", 20, 2, 21, 2),
    Sketcher.Constraint("Tangent", 21, 1, 22, 1),
    Sketcher.Constraint("Tangent", 22, 2, 23, 2),
    Sketcher.Constraint("Tangent", 23, 1, 20, 1),
    Sketcher.Constraint("Tangent", 24, 2, 25, 2),
    Sketcher.Constraint("Tangent", 25, 1, 26, 1),
    Sketcher.Constraint("Tangent", 26, 2, 27, 2),
    Sketcher.Constraint("Tangent", 27, 1, 24, 1),
    Sketcher.Constraint("Tangent", 28, 2, 29, 2),
    Sketcher.Constraint("Tangent", 29, 1, 30, 1),
    Sketcher.Constraint("Tangent", 30, 2, 31, 2),
    Sketcher.Constraint("Tangent", 31, 1, 28, 1),
    Sketcher.Constraint("Tangent", 32, 2, 33, 2),
    Sketcher.Constraint("Tangent", 33, 1, 34, 1),
    Sketcher.Constraint("Tangent", 34, 2, 35, 2),
    Sketcher.Constraint("Tangent", 35, 1, 32, 1),
    Sketcher.Constraint("Tangent", 36, 2, 37, 2),
    Sketcher.Constraint("Tangent", 37, 1, 38, 1),
    Sketcher.Constraint("Tangent", 38, 2, 39, 2),
    Sketcher.Constraint("Tangent", 39, 1, 36, 1),
    Sketcher.Constraint("Tangent", 40, 2, 41, 2),
    Sketcher.Constraint("Tangent", 41, 1, 42, 1),
    Sketcher.Constraint("Tangent", 42, 2, 43, 2),
    Sketcher.Constraint("Tangent", 43, 1, 40, 1),
    Sketcher.Constraint("Horizontal", 0),
    Sketcher.Constraint("Horizontal", 2),
    Sketcher.Constraint("Horizontal", 4),
    Sketcher.Constraint("Horizontal", 6),
    Sketcher.Constraint("Horizontal", 8),
    Sketcher.Constraint("Horizontal", 10),
    Sketcher.Constraint("Horizontal", 12),
    Sketcher.Constraint("Horizontal", 14),
    Sketcher.Constraint("Horizontal", 16),
    Sketcher.Constraint("Horizontal", 18),
    Sketcher.Constraint("Horizontal", 20),
    Sketcher.Constraint("Horizontal", 22),
    Sketcher.Constraint("Horizontal", 24),
    Sketcher.Constraint("Horizontal", 26),
    Sketcher.Constraint("Horizontal", 28),
    Sketcher.Constraint("Horizontal", 30),
    Sketcher.Constraint("Horizontal", 32),
    Sketcher.Constraint("Horizontal", 34),
    Sketcher.Constraint("Horizontal", 36),
    Sketcher.Constraint("Horizontal", 38),
    Sketcher.Constraint("Horizontal", 40),
    Sketcher.Constraint("Horizontal", 42),
    Sketcher.Constraint("Equal", 3, 5),
    Sketcher.Constraint("Equal", 7, 9),
    Sketcher.Constraint("Equal", 11, 13),
    Sketcher.Constraint("Equal", 15, 17),
    Sketcher.Constraint("Equal", 19, 21),
    Sketcher.Constraint("Equal", 23, 25),
    Sketcher.Constraint("Equal", 27, 29),
    Sketcher.Constraint("Equal", 31, 33),
    Sketcher.Constraint("Equal", 35, 37),
    Sketcher.Constraint("Equal", 39, 41),
    Sketcher.Constraint("Symmetric", 21, 3, 23, 3, -1, 1),
    Sketcher.Constraint("Symmetric", 19, 3, 25, 3, -1, 1),
    Sketcher.Constraint("Symmetric", 15, 3, 29, 3, -1, 1),
    Sketcher.Constraint("Symmetric", 11, 3, 33, 3, -1, 1),
    Sketcher.Constraint("Symmetric", 7, 3, 37, 3, -1, 1),
    Sketcher.Constraint("Symmetric", 3, 3, 41, 3, -1, 1),
    Sketcher.Constraint("Vertical", 1, 3, 5, 3),
    Sketcher.Constraint("Vertical", 3, 3, 7, 3),
    Sketcher.Constraint("Vertical", 5, 3, 9, 3),
    Sketcher.Constraint("Vertical", 7, 3, 11, 3),
    Sketcher.Constraint("Vertical", 9, 3, 13, 3),
    Sketcher.Constraint("Vertical", 11, 3, 15, 3),
    Sketcher.Constraint("Vertical", 13, 3, 17, 3),
    Sketcher.Constraint("Vertical", 15, 3, 19, 3),
    Sketcher.Constraint("Vertical", 17, 3, 21, 3),
    Sketcher.Constraint("Vertical", 19, 3, 23, 3),
    Sketcher.Constraint("Vertical", 23, 3, 27, 3),
    Sketcher.Constraint("Vertical", 27, 3, 31, 3),
    Sketcher.Constraint("Vertical", 31, 3, 35, 3),
    Sketcher.Constraint("Vertical", 35, 3, 39, 3),
    Sketcher.Constraint("Vertical", 39, 3, 43, 3),
    Sketcher.Constraint("DistanceX", 0, 2, 0, 1, Q("50 mm")),
    Sketcher.Constraint("Radius", 1, Q("1.75 mm")),
    Sketcher.Constraint("DistanceY", 1, 3, -1, 1, Q("50 mm")),
    Sketcher.Constraint("DistanceY", 5, 3, -1, 1, Q("40 mm")),
    Sketcher.Constraint("DistanceY", 9, 3, -1, 1, Q("30 mm")),
    Sketcher.Constraint("DistanceY", 13, 3, -1, 1, Q("20 mm")),
    Sketcher.Constraint("DistanceY", 17, 3, -1, 1, Q("10 mm")),
])
pocket3 = doc.addObject("PartDesign::Pocket", "Pocket002")
body2.addObject(pocket3)
pocket3.Profile = sketch9
pocket3.Type = "ThroughAll"
pocket3.Midplane = True

doc.recompute()
